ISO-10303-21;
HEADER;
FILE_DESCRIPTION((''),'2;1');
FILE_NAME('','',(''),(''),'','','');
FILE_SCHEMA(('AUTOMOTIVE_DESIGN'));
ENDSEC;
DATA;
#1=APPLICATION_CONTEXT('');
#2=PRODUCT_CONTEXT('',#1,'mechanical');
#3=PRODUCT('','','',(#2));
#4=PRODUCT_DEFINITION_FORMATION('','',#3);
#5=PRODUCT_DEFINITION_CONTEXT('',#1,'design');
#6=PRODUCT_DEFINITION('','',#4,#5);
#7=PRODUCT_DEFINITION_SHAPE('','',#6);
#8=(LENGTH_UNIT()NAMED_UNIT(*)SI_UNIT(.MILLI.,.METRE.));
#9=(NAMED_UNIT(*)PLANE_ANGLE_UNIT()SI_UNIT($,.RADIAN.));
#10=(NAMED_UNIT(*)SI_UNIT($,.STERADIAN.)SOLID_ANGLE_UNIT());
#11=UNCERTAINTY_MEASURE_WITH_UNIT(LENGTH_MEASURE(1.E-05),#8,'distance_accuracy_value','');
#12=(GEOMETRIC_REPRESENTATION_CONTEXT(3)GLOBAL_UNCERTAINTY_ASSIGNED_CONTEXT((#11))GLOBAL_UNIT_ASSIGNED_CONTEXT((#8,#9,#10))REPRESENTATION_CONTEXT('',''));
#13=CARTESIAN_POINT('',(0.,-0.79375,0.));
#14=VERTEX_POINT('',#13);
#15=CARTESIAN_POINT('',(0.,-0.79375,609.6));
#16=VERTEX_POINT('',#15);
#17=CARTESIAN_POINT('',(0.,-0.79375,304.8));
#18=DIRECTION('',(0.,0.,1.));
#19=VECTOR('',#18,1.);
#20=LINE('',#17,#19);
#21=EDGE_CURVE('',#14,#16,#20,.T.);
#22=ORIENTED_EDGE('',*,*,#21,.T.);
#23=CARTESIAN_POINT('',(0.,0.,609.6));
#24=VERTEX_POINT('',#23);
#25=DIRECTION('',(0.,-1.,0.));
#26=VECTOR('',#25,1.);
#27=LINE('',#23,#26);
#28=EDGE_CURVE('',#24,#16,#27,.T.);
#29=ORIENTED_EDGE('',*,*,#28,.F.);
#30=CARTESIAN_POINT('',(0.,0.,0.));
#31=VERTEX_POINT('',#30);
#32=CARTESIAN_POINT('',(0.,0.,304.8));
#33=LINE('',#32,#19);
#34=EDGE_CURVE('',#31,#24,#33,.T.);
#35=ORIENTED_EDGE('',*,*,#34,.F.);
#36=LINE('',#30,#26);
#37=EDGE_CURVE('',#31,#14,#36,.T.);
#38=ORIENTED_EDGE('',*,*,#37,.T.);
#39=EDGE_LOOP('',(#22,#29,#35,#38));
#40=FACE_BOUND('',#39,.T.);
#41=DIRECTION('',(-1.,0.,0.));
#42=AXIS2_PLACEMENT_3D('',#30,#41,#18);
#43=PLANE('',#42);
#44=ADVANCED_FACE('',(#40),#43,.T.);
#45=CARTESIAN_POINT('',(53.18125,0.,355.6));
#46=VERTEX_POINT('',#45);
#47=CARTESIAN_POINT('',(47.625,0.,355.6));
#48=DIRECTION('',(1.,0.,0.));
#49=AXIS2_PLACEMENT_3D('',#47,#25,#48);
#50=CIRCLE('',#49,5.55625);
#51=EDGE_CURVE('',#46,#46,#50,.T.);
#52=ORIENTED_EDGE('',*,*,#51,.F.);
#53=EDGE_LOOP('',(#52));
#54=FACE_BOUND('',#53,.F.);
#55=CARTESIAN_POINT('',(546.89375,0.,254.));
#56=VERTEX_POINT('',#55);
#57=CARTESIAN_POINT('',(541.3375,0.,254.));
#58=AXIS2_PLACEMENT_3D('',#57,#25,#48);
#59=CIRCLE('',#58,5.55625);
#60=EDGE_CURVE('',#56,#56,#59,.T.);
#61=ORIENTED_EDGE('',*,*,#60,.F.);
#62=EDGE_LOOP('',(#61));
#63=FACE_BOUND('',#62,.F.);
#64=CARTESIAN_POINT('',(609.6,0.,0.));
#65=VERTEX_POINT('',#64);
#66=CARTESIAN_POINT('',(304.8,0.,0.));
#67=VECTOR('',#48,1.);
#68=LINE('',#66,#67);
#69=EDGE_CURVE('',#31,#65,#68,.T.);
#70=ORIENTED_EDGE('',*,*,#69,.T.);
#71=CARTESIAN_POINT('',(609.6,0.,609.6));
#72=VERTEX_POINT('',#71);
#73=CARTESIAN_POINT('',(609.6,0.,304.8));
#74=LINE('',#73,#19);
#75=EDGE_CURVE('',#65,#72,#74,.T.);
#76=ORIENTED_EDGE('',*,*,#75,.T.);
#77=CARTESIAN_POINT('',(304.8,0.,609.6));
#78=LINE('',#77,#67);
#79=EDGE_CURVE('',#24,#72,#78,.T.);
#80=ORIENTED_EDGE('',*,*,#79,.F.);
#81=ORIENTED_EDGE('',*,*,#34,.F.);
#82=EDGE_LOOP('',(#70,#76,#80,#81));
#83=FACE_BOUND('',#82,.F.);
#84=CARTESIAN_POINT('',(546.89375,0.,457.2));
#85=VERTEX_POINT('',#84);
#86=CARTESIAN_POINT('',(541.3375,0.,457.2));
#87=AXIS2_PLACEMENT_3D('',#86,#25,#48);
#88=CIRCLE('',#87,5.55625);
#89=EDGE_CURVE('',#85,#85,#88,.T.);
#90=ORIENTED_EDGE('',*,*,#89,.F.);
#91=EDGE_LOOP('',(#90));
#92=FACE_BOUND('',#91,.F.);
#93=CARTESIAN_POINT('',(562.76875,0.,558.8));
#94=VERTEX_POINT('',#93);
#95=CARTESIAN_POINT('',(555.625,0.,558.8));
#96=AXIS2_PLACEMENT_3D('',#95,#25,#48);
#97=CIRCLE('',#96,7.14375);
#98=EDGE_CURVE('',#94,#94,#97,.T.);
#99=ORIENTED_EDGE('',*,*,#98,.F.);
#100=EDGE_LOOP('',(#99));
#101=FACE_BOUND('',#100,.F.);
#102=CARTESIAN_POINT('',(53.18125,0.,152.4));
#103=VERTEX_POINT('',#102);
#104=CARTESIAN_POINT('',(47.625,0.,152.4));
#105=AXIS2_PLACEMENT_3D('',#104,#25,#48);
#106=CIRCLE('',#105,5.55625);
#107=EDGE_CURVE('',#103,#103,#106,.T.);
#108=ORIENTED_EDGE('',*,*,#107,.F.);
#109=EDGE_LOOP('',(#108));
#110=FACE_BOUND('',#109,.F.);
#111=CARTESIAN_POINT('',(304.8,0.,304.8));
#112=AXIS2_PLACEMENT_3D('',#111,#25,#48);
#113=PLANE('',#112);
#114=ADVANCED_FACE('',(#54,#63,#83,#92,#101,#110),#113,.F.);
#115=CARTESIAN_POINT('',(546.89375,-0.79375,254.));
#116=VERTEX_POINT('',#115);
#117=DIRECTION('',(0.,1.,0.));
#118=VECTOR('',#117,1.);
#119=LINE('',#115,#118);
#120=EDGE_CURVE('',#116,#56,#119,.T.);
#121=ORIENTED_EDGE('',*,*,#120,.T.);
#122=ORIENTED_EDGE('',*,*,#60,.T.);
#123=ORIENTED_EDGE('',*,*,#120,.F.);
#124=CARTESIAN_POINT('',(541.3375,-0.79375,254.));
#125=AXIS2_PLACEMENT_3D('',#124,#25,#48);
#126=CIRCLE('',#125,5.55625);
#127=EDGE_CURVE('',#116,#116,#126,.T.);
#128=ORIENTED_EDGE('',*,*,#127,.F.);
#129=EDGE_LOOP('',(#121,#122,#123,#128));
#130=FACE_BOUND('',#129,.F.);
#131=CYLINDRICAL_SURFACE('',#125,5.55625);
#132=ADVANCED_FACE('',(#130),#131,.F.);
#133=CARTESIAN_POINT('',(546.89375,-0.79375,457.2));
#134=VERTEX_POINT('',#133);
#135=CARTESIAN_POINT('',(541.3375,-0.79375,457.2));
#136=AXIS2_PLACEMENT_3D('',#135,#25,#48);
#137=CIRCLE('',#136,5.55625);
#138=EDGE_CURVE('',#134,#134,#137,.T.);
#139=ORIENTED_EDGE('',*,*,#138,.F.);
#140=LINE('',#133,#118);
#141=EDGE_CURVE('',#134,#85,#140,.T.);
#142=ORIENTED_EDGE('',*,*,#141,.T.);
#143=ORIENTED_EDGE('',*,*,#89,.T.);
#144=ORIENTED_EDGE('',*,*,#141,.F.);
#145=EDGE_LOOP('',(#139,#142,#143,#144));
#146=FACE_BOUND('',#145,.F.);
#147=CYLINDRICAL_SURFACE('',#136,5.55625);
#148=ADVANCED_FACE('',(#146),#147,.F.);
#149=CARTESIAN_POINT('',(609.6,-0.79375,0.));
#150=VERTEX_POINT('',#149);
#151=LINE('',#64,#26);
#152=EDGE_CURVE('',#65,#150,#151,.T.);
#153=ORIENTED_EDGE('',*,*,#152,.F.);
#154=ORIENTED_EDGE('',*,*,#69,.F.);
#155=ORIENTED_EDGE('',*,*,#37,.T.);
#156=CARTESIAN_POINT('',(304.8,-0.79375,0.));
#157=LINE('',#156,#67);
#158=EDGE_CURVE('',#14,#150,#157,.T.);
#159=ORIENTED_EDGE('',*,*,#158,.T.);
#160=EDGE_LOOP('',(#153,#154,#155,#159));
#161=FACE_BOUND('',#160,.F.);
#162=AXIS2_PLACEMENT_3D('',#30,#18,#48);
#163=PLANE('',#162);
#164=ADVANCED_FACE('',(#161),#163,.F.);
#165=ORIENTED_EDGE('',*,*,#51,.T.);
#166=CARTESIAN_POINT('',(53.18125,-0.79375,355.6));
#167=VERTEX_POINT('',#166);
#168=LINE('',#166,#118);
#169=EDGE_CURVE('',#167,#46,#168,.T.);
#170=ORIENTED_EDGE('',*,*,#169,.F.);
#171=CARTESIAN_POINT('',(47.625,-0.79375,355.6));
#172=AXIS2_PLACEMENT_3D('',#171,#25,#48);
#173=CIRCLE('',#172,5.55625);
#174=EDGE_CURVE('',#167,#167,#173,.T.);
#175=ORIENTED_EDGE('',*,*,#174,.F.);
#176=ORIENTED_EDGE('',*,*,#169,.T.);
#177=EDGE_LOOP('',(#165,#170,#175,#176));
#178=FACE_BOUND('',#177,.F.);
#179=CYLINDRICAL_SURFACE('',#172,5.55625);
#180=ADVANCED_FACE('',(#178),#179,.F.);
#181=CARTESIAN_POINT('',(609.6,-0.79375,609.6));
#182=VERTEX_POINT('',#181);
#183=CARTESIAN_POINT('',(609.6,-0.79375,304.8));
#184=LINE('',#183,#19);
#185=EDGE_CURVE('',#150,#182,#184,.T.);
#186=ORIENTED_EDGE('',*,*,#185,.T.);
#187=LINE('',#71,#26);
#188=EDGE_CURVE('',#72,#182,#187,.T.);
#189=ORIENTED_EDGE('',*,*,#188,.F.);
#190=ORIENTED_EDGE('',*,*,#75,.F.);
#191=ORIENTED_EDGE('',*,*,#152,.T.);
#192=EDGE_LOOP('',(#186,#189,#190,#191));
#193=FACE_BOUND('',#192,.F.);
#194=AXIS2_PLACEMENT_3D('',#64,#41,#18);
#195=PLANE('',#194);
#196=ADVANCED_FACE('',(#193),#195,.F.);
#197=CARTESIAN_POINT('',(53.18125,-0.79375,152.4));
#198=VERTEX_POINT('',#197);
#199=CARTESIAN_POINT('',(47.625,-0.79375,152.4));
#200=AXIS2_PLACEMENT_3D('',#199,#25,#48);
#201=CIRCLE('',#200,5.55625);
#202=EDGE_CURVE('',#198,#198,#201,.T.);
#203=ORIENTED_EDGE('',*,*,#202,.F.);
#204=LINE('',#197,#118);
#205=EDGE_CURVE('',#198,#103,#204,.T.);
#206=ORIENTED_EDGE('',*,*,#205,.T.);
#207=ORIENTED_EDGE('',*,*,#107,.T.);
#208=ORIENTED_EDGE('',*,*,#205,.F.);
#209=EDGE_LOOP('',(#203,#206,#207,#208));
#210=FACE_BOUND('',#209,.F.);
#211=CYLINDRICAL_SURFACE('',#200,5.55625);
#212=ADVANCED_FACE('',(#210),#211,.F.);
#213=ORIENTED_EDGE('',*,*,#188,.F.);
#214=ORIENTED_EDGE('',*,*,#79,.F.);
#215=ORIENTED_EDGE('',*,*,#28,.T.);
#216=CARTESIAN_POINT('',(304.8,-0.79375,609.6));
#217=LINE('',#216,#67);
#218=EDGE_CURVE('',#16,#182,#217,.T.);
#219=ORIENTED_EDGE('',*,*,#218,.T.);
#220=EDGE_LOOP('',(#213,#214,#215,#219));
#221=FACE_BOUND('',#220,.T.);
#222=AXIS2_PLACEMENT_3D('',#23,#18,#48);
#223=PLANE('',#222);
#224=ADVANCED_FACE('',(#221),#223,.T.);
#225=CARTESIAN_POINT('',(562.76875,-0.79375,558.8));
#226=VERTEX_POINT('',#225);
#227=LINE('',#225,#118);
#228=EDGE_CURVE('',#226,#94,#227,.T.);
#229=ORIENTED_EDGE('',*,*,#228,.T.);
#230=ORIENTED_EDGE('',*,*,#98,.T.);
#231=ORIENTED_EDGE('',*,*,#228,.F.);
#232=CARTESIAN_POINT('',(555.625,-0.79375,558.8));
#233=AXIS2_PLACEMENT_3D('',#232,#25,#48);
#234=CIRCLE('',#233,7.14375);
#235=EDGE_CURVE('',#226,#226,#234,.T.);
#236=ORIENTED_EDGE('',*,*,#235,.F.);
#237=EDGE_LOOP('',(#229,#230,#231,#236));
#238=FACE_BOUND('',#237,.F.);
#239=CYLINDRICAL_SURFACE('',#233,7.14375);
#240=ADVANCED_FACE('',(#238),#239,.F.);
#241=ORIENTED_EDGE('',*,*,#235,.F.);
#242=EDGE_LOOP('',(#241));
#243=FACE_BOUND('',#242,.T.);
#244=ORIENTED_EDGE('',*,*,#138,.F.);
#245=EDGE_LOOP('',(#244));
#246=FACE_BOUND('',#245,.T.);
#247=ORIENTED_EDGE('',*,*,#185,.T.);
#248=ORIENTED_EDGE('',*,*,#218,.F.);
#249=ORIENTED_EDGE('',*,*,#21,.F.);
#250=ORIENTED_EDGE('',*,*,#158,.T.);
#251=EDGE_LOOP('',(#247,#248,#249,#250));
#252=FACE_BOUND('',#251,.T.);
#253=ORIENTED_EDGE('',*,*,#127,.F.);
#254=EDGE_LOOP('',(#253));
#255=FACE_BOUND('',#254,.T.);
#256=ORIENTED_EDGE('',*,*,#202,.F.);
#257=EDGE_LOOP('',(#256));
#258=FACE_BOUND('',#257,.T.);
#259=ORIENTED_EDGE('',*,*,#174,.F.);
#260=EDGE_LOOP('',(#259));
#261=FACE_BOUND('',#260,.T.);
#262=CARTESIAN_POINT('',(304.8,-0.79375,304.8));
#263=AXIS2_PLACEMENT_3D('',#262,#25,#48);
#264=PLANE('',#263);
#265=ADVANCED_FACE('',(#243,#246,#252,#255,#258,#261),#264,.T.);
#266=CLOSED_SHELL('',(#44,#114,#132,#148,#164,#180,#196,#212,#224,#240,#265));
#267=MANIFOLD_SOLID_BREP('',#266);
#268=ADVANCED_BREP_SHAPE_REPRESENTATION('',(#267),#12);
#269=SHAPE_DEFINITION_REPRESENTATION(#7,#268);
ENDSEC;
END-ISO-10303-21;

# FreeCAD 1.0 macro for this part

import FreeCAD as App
import Part
import Sketcher
Q = App.Units.Quantity


def add_polygon(sketch, points):
    """Adds a closed chain of lines whose ends are joined by coincident constraints."""
    first, n = sketch.GeometryCount, len(points)
    for a, b in zip(points, points[1:] + points[:1]):
        sketch.addGeometry(Part.LineSegment(App.Vector(*a, 0), App.Vector(*b, 0)), False)
    for i in range(n):
        sketch.addConstraint(Sketcher.Constraint("Coincident", first + i, 2, first + (i + 1) % n, 1))

doc = App.newDocument("Part")
body = doc.addObject("PartDesign::Body", "Body")

sketch1 = doc.addObject("Sketcher::SketchObject", "Sketch")
body.addObject(sketch1)
sketch1.AttachmentSupport = (doc.XZ_Plane, [""])
sketch1.MapMode = "FlatFace"
add_polygon(sketch1, [(0, 610), (0, 0), (610, 0), (610, 610)])
sketch1.addConstraint(Sketcher.Constraint("Vertical", 0))
sketch1.addConstraint(Sketcher.Constraint("Horizontal", 1))
sketch1.addConstraint(Sketcher.Constraint("Vertical", 2))
sketch1.addConstraint(Sketcher.Constraint("Horizontal", 3))
sketch1.addConstraint(Sketcher.Constraint("Coincident", 0, 2, -1, 1))
sketch1.addConstraint(Sketcher.Constraint("Equal", 3, 0))
sketch1.addConstraint(Sketcher.Constraint("DistanceX", 1, 1, 1, 2, Q("24 in")))
pad1 = doc.addObject("PartDesign::Pad", "Pad")
body.addObject(pad1)
pad1.Profile = sketch1
pad1.Length = Q("0.03125 in")

sketch2 = doc.addObject("Sketcher::SketchObject", "Sketch001")
body.addObject(sketch2)
sketch2.AttachmentSupport = (doc.XZ_Plane, [""])
sketch2.MapMode = "FlatFace"
sketch2.AttachmentOffset = App.Placement(App.Vector(0, 0, 0.03125 * 25.4), App.Rotation())
sketch2.addGeometry(Part.Circle(App.Vector(48, 356, 0), App.Vector(0, 0, 1), 6), False)
sketch2.addGeometry(Part.Circle(App.Vector(48, 152, 0), App.Vector(0, 0, 1), 6), False)
sketch2.addGeometry(Part.Circle(App.Vector(541, 254, 0), App.Vector(0, 0, 1), 6), False)
sketch2.addGeometry(Part.Circle(App.Vector(541, 457, 0), App.Vector(0, 0, 1), 6), False)
sketch2.addConstraint(Sketcher.Constraint("Equal", 0, 1))
sketch2.addConstraint(Sketcher.Constraint("Equal", 1, 2))
sketch2.addConstraint(Sketcher.Constraint("Equal", 2, 3))
sketch2.addConstraint(Sketcher.Constraint("Vertical", 0, 3, 1, 3))
sketch2.addConstraint(Sketcher.Constraint("Vertical", 2, 3, 3, 3))
sketch2.addConstraint(Sketcher.Constraint("Diameter", 0, Q("0.4375 in")))
sketch2.addConstraint(Sketcher.Constraint("DistanceY", -1, 1, 0, 3, Q("14 in")))
sketch2.addConstraint(Sketcher.Constraint("DistanceY", -1, 1, 1, 3, Q("6 in")))
sketch2.addConstraint(Sketcher.Constraint("DistanceY", -1, 1, 2, 3, Q("10 in")))
sketch2.addConstraint(Sketcher.Constraint("DistanceY", -1, 1, 3, 3, Q("18 in")))
sketch2.addConstraint(Sketcher.Constraint("DistanceX", -1, 1, 0, 3, Q("1.875 in")))
sketch2.addConstraint(Sketcher.Constraint("DistanceX", -1, 1, 2, 3, Q("21.3125 in")))
pocket1 = doc.addObject("PartDesign::Pocket", "Pocket")
body.addObject(pocket1)
pocket1.Profile = sketch2
pocket1.Length = Q("1 in")

sketch3 = doc.addObject("Sketcher::SketchObject", "Sketch002")
body.addObject(sketch3)
sketch3.AttachmentSupport = (doc.XZ_Plane, [""])
sketch3.MapMode = "FlatFace"
sketch3.AttachmentOffset = App.Placement(App.Vector(0, 0, 0.03125 * 25.4), App.Rotation())
sketch3.addGeometry(Part.Circle(App.Vector(556, 559, 0), App.Vector(0, 0, 1), 7), False)
sketch3.addConstraint(Sketcher.Constraint("Diameter", 0, Q("0.5625 in")))
sketch3.addConstraint(Sketcher.Constraint("DistanceY", -1, 1, 0, 3, Q("22 in")))
sketch3.addConstraint(Sketcher.Constraint("DistanceX", -1, 1, 0, 3, Q("21.875 in")))
pocket2 = doc.addObject("PartDesign::Pocket", "Pocket001")
body.addObject(pocket2)
pocket2.Profile = sketch3
pocket2.Length = Q("1 in")

doc.recompute()
